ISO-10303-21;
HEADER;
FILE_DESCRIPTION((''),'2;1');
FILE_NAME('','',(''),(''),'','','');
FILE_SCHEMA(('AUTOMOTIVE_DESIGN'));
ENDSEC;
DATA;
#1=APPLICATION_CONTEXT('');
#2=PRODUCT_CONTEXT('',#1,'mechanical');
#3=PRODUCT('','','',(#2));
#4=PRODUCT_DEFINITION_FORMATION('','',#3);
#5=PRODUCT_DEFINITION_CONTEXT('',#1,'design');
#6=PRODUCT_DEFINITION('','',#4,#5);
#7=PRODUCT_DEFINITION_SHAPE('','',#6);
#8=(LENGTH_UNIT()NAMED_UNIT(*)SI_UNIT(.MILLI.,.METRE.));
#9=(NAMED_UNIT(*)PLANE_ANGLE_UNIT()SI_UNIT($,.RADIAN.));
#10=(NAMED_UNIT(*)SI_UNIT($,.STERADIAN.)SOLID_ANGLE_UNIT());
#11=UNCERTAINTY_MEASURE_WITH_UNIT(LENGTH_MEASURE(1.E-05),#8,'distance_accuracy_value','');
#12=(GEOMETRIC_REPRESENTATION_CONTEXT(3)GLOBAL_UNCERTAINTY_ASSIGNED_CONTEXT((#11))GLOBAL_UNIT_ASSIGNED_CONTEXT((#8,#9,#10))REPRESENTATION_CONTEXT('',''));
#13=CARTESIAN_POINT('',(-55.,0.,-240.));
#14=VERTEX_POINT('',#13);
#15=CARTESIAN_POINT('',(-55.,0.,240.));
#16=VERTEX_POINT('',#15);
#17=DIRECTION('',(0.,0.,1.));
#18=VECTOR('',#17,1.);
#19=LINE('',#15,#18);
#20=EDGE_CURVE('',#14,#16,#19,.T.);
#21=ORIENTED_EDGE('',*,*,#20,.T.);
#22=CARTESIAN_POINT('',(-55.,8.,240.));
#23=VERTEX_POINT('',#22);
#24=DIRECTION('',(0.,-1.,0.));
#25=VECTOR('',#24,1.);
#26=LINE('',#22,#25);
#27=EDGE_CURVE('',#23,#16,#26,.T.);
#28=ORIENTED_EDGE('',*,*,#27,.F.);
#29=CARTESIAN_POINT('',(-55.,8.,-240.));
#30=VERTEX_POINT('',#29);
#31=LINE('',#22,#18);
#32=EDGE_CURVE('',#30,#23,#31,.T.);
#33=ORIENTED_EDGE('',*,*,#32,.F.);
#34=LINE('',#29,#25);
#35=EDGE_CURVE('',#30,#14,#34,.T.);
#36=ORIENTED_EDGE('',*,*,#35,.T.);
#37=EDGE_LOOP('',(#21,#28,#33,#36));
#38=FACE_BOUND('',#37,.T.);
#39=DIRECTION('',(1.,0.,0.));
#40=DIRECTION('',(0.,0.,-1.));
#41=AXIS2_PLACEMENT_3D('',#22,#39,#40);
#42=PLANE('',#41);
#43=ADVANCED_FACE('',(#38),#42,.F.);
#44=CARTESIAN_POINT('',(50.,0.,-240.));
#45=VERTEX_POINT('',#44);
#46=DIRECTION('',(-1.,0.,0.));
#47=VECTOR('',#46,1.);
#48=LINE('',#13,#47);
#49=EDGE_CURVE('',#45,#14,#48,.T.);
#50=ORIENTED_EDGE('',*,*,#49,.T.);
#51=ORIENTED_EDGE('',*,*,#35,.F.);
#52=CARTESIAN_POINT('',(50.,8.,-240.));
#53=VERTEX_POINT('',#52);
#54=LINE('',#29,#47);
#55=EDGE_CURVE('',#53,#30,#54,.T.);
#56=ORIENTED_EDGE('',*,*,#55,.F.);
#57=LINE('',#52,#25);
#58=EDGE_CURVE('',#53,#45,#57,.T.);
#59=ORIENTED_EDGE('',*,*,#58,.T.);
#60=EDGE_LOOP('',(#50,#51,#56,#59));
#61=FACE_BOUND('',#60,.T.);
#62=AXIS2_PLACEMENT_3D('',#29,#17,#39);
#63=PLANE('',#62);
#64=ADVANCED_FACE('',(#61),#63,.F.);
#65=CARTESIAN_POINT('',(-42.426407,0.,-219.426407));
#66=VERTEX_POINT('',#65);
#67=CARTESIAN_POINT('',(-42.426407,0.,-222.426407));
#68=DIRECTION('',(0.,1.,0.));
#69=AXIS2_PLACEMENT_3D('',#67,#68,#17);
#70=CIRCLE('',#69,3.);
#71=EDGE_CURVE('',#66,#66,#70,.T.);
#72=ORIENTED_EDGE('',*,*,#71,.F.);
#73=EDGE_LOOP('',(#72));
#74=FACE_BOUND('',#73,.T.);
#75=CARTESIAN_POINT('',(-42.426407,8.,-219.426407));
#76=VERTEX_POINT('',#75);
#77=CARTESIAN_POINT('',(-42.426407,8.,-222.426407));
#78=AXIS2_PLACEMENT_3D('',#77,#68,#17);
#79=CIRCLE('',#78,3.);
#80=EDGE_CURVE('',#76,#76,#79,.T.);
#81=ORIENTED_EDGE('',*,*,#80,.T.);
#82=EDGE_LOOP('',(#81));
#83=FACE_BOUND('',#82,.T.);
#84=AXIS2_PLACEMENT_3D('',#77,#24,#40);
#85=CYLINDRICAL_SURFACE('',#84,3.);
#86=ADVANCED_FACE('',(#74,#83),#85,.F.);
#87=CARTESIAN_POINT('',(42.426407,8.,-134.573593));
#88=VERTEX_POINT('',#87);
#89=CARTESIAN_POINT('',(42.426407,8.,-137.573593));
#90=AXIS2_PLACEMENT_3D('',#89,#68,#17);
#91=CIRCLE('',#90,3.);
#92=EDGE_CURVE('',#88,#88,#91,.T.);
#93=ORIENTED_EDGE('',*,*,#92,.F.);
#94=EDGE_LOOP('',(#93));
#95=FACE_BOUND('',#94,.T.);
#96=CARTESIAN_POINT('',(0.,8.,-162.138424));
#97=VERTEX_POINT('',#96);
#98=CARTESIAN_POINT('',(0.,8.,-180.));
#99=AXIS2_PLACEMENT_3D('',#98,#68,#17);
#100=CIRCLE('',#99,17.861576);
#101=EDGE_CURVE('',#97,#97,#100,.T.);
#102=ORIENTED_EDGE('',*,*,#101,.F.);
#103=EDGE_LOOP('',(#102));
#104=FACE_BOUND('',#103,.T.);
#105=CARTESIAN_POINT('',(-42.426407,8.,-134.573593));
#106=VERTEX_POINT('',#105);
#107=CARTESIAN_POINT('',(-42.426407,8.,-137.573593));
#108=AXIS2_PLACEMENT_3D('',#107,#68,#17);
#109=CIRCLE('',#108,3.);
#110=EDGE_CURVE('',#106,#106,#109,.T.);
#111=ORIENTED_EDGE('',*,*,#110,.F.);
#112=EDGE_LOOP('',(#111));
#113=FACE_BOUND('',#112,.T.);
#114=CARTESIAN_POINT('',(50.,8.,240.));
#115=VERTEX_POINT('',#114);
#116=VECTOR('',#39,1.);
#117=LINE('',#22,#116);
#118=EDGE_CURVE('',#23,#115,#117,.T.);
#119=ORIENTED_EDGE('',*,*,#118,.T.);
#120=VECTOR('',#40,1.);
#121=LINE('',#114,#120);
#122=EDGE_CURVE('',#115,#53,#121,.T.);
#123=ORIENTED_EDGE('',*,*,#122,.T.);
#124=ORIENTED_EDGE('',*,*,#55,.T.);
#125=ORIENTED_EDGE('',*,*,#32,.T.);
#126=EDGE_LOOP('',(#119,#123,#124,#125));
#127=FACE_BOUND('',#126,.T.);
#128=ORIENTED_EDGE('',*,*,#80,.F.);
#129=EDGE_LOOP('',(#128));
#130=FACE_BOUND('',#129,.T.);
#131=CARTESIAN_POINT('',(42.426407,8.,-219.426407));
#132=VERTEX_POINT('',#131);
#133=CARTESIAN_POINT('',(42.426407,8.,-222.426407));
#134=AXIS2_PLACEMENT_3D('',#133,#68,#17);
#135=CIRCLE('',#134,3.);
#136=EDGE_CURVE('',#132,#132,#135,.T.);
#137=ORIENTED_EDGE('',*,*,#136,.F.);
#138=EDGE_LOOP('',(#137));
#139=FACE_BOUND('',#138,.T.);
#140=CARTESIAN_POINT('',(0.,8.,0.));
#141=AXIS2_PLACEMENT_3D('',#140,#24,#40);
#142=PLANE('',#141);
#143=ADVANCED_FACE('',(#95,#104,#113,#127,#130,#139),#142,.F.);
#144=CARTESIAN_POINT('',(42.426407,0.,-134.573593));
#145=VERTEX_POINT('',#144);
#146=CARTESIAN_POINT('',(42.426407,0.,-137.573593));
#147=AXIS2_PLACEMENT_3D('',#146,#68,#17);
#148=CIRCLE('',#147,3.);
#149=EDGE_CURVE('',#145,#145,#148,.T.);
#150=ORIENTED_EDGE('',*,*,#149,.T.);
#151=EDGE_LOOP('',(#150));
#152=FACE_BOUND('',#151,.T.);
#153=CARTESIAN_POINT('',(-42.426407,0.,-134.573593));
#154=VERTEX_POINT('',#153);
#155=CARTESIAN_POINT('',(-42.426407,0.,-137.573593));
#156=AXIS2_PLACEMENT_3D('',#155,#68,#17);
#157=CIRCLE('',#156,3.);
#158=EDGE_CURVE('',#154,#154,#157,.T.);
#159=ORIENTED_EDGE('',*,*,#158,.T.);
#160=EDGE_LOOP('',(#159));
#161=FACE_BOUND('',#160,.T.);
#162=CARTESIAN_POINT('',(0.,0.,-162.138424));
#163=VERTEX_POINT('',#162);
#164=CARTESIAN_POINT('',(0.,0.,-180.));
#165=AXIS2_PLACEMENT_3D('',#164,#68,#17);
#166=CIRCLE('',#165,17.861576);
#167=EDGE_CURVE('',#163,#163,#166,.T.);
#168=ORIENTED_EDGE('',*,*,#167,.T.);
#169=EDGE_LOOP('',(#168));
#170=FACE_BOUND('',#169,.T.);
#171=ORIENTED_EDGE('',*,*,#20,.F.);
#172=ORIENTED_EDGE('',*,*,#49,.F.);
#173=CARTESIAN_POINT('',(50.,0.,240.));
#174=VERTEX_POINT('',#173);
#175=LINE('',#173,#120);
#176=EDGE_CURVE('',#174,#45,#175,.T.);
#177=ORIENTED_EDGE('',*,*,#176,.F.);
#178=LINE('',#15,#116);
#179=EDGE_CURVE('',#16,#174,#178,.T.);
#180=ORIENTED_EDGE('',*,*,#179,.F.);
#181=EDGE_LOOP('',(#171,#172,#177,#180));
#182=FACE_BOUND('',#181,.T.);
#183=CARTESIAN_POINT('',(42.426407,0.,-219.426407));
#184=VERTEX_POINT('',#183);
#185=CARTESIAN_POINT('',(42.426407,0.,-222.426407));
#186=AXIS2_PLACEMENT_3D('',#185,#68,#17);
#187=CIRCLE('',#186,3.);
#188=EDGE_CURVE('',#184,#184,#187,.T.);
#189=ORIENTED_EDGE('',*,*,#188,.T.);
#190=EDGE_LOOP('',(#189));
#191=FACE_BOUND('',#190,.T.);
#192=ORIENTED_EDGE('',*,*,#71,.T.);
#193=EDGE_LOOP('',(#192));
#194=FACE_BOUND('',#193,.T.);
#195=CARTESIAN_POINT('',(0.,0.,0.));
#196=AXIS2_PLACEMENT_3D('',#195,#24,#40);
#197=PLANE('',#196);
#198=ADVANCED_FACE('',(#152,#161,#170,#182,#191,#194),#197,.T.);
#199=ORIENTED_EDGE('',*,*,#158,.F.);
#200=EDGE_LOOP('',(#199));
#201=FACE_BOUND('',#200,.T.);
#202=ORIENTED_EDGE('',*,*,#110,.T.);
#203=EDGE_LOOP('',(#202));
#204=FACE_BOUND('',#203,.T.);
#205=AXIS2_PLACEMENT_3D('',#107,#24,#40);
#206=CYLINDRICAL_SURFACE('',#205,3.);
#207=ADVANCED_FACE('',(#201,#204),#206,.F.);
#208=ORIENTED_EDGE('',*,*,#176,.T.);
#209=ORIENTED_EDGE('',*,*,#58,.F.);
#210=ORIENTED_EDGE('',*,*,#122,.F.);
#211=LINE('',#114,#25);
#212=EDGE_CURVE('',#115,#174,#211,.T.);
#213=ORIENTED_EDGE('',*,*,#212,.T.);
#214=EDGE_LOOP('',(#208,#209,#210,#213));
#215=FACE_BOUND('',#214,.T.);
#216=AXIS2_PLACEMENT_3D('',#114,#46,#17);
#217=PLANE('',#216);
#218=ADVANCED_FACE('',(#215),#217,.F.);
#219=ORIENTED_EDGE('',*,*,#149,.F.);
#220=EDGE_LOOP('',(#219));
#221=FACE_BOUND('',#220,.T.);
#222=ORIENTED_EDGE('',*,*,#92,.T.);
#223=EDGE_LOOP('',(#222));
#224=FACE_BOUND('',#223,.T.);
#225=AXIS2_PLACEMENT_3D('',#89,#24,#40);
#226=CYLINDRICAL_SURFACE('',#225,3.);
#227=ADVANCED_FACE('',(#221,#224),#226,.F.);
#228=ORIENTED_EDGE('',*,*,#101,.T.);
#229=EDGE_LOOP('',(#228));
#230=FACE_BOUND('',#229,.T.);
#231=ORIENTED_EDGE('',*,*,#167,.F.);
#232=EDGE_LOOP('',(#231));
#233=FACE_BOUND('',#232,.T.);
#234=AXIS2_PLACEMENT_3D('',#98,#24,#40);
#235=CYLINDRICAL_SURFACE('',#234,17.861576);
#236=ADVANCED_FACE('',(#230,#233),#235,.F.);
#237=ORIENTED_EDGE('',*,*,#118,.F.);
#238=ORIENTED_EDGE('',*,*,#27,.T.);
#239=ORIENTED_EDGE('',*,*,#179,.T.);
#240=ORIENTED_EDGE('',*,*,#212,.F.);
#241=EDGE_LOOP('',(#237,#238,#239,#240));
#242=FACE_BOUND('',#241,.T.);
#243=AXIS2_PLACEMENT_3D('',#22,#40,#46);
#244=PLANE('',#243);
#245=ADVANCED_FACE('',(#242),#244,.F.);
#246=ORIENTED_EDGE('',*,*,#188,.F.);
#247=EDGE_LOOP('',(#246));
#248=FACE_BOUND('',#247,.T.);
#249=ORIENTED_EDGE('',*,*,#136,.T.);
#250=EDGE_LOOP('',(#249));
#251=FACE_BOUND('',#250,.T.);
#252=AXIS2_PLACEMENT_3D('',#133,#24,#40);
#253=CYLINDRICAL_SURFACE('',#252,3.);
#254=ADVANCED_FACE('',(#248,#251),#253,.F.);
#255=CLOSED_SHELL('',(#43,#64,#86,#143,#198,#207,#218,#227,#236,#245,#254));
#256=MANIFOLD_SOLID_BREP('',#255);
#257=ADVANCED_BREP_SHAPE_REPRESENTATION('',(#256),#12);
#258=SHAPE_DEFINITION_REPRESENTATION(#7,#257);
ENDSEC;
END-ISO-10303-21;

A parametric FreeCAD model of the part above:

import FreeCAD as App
import Part
import Sketcher
from FreeCAD import Vector
Q = App.Units.Quantity

doc = App.newDocument("Part")
body = doc.addObject("PartDesign::Body", "Body")

sketch1 = doc.addObject("Sketcher::SketchObject", "Sketch")
body.addObject(sketch1)
sketch1.AttachmentSupport = (doc.XZ_Plane, [""])
sketch1.MapMode = "FlatFace"
sketch1.addGeometry([
    Part.LineSegment(Vector(-55, -240, 0), Vector(-55, 240, 0)),
    Part.LineSegment(Vector(-55, 240, 0), Vector(50, 240, 0)),
    Part.LineSegment(Vector(50, 240, 0), Vector(50, -240, 0)),
    Part.LineSegment(Vector(50, -240, 0), Vector(-55, -240, 0)),
    Part.Circle(Vector(-42.4, -137.6, 0), Vector(0, 0, 1), 3),
    Part.Circle(Vector(42.4, -137.6, 0), Vector(0, 0, 1), 3),
    Part.Circle(Vector(-42.4, -222.4, 0), Vector(0, 0, 1), 3),
    Part.Circle(Vector(0, -180, 0), Vector(0, 0, 1), 17.9),
    Part.Circle(Vector(42.4, -222.4, 0), Vector(0, 0, 1), 3),
], False)
sketch1.addConstraint([
    Sketcher.Constraint("Coincident", 0, 2, 1, 1),
    Sketcher.Constraint("Coincident", 1, 2, 2, 1),
    Sketcher.Constraint("Coincident", 2, 2, 3, 1),
    Sketcher.Constraint("Coincident", 3, 2, 0, 1),
    Sketcher.Constraint("Vertical", 0),
    Sketcher.Constraint("Horizontal", 1),
    Sketcher.Constraint("Vertical", 2),
    Sketcher.Constraint("Horizontal", 3),
    Sketcher.Constraint("Equal", 4, 5),
    Sketcher.Constraint("Equal", 5, 6),
    Sketcher.Constraint("Equal", 6, 8),
    Sketcher.Constraint("Symmetric", 4, 3, 5, 3, -2),
    Sketcher.Constraint("Symmetric", 6, 3, 8, 3, -2),
    Sketcher.Constraint("PointOnObject", 7, 3, -2),
    Sketcher.Constraint("Vertical", 4, 3, 6, 3),
    Sketcher.Constraint("Diameter", 4, Q("6 mm")),
    Sketcher.Constraint("DistanceX", 1, 1, 1, 2, Q("105 mm")),
    Sketcher.Constraint("DistanceY", 0, 1, 0, 2, Q("480 mm")),
    Sketcher.Constraint("DistanceY", 7, 3, -1, 1, Q("180 mm")),
    Sketcher.Constraint("DistanceX", 0, 2, -1, 1, Q("55 mm")),
    Sketcher.Constraint("DistanceY", -1, 1, 0, 2, Q("240 mm")),
    Sketcher.Constraint("Diameter", 7, Q("35.723152 mm")),
    Sketcher.Constraint("DistanceX", 4, 3, -1, 1, Q("42.426407 mm")),
    Sketcher.Constraint("DistanceY", 4, 3, -1, 1, Q("137.573593 mm")),
    Sketcher.Constraint("DistanceY", 6, 3, -1, 1, Q("222.426407 mm")),
])
pad1 = doc.addObject("PartDesign::Pad", "Pad")
body.addObject(pad1)
pad1.Profile = sketch1
pad1.Length = 8
pad1.Reversed = True

doc.recompute()
